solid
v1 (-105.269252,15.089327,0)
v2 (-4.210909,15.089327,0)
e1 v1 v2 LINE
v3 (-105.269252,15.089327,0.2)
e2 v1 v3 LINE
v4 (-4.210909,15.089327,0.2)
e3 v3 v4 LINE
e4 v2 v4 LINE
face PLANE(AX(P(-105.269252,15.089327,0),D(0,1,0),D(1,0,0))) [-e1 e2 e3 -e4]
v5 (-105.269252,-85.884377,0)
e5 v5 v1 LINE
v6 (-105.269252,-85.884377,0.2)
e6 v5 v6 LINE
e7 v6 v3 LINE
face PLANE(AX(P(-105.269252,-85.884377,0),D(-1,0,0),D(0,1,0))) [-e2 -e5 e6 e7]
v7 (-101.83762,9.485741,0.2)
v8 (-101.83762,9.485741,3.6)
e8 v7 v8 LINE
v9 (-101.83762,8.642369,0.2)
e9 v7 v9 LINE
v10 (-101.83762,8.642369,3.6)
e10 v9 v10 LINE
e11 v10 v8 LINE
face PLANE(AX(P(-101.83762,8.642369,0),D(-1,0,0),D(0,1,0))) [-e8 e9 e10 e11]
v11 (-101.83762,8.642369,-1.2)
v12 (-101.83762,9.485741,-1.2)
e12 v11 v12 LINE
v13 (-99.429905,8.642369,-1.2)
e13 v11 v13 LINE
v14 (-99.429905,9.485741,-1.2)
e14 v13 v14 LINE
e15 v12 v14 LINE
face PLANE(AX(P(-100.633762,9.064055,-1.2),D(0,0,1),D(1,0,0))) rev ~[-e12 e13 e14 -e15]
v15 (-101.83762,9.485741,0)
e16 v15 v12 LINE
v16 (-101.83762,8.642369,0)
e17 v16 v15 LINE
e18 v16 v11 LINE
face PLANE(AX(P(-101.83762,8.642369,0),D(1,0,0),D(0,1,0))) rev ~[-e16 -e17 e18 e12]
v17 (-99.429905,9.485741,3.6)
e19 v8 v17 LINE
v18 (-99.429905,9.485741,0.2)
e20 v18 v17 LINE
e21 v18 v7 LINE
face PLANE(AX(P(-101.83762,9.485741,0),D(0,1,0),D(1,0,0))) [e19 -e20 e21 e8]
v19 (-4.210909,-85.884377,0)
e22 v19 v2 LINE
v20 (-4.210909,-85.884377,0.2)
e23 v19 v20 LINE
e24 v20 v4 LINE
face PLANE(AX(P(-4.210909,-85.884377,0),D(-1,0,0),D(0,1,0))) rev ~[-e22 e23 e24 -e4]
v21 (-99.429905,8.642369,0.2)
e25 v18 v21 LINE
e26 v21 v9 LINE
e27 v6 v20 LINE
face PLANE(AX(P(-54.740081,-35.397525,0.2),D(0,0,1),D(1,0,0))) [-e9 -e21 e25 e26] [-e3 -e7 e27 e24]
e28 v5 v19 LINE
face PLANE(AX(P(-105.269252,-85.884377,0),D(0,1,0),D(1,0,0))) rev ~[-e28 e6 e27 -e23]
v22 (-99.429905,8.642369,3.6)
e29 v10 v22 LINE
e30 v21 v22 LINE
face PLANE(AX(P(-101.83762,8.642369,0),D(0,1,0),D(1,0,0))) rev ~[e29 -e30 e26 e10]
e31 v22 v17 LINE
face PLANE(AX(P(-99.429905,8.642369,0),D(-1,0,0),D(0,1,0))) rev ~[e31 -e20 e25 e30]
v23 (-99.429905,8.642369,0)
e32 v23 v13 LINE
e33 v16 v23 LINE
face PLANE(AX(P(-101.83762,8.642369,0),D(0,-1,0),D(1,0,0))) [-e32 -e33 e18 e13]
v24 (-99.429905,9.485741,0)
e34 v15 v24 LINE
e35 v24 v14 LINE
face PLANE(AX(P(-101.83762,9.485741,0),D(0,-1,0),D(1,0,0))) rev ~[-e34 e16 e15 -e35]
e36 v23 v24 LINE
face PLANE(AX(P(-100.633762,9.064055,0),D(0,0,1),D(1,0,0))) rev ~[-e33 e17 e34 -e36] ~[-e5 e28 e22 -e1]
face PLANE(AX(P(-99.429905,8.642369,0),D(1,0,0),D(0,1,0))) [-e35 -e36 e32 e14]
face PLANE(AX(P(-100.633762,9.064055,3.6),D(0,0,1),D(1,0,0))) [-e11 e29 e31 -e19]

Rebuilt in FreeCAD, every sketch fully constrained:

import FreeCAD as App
import Part
import Sketcher

V = App.Vector


def add_polygon(sketch, points):
    """Adds a closed chain of lines whose ends are joined by coincident constraints."""
    first, n = sketch.GeometryCount, len(points)
    for a, b in zip(points, points[1:] + points[:1]):
        sketch.addGeometry(Part.LineSegment(App.Vector(*a, 0), App.Vector(*b, 0)), False)
    for i in range(n):
        sketch.addConstraint(Sketcher.Constraint("Coincident", first + i, 2, first + (i + 1) % n, 1))

doc = App.newDocument("Part")
body = doc.addObject("PartDesign::Body", "Body")

sketch1 = doc.addObject("Sketcher::SketchObject", "Sketch")
body.addObject(sketch1)
sketch1.AttachmentSupport = (doc.XY_Plane, [""])
sketch1.MapMode = "FlatFace"
add_polygon(sketch1, [(-105, 15), (-105, -86), (-4, -86), (-4, 15)])
sketch1.addConstraint(Sketcher.Constraint("Vertical", 0))
sketch1.addConstraint(Sketcher.Constraint("Horizontal", 1))
sketch1.addConstraint(Sketcher.Constraint("Vertical", 2))
sketch1.addConstraint(Sketcher.Constraint("Horizontal", 3))
sketch1.addConstraint(Sketcher.Constraint("DistanceX", 1, 1, 1, 2, 101.058343))
sketch1.addConstraint(Sketcher.Constraint("DistanceY", 0, 2, 0, 1, 100.973705))
sketch1.addConstraint(Sketcher.Constraint("DistanceX", 1, 2, -1, 1, 4.210909))
sketch1.addConstraint(Sketcher.Constraint("DistanceY", 0, 2, -1, 1, 85.884377))
pad1 = doc.addObject("PartDesign::Pad", "Pad")
body.addObject(pad1)
pad1.Profile = sketch1
pad1.Length = 0.2

sketch2 = doc.addObject("Sketcher::SketchObject", "Sketch001")
body.addObject(sketch2)
sketch2.AttachmentSupport = (doc.XY_Plane, [""])
sketch2.MapMode = "FlatFace"
add_polygon(sketch2, [(-101.8, 9.5), (-101.8, 8.6), (-99.4, 8.6), (-99.4, 9.5)])
sketch2.addConstraint(Sketcher.Constraint("Vertical", 0))
sketch2.addConstraint(Sketcher.Constraint("Horizontal", 1))
sketch2.addConstraint(Sketcher.Constraint("Vertical", 2))
sketch2.addConstraint(Sketcher.Constraint("Horizontal", 3))
sketch2.addConstraint(Sketcher.Constraint("DistanceX", 1, 1, 1, 2, 2.407715))
sketch2.addConstraint(Sketcher.Constraint("DistanceY", 0, 2, 0, 1, 0.843372))
sketch2.addConstraint(Sketcher.Constraint("DistanceX", 0, 2, -1, 1, 101.83762))
sketch2.addConstraint(Sketcher.Constraint("DistanceY", -1, 1, 0, 2, 8.642369))
pad2 = doc.addObject("PartDesign::Pad", "Pad001")
body.addObject(pad2)
pad2.Profile = sketch2
pad2.Type = "TwoLengths"
pad2.Length = 3.6
pad2.Length2 = 1.2

doc.recompute()
